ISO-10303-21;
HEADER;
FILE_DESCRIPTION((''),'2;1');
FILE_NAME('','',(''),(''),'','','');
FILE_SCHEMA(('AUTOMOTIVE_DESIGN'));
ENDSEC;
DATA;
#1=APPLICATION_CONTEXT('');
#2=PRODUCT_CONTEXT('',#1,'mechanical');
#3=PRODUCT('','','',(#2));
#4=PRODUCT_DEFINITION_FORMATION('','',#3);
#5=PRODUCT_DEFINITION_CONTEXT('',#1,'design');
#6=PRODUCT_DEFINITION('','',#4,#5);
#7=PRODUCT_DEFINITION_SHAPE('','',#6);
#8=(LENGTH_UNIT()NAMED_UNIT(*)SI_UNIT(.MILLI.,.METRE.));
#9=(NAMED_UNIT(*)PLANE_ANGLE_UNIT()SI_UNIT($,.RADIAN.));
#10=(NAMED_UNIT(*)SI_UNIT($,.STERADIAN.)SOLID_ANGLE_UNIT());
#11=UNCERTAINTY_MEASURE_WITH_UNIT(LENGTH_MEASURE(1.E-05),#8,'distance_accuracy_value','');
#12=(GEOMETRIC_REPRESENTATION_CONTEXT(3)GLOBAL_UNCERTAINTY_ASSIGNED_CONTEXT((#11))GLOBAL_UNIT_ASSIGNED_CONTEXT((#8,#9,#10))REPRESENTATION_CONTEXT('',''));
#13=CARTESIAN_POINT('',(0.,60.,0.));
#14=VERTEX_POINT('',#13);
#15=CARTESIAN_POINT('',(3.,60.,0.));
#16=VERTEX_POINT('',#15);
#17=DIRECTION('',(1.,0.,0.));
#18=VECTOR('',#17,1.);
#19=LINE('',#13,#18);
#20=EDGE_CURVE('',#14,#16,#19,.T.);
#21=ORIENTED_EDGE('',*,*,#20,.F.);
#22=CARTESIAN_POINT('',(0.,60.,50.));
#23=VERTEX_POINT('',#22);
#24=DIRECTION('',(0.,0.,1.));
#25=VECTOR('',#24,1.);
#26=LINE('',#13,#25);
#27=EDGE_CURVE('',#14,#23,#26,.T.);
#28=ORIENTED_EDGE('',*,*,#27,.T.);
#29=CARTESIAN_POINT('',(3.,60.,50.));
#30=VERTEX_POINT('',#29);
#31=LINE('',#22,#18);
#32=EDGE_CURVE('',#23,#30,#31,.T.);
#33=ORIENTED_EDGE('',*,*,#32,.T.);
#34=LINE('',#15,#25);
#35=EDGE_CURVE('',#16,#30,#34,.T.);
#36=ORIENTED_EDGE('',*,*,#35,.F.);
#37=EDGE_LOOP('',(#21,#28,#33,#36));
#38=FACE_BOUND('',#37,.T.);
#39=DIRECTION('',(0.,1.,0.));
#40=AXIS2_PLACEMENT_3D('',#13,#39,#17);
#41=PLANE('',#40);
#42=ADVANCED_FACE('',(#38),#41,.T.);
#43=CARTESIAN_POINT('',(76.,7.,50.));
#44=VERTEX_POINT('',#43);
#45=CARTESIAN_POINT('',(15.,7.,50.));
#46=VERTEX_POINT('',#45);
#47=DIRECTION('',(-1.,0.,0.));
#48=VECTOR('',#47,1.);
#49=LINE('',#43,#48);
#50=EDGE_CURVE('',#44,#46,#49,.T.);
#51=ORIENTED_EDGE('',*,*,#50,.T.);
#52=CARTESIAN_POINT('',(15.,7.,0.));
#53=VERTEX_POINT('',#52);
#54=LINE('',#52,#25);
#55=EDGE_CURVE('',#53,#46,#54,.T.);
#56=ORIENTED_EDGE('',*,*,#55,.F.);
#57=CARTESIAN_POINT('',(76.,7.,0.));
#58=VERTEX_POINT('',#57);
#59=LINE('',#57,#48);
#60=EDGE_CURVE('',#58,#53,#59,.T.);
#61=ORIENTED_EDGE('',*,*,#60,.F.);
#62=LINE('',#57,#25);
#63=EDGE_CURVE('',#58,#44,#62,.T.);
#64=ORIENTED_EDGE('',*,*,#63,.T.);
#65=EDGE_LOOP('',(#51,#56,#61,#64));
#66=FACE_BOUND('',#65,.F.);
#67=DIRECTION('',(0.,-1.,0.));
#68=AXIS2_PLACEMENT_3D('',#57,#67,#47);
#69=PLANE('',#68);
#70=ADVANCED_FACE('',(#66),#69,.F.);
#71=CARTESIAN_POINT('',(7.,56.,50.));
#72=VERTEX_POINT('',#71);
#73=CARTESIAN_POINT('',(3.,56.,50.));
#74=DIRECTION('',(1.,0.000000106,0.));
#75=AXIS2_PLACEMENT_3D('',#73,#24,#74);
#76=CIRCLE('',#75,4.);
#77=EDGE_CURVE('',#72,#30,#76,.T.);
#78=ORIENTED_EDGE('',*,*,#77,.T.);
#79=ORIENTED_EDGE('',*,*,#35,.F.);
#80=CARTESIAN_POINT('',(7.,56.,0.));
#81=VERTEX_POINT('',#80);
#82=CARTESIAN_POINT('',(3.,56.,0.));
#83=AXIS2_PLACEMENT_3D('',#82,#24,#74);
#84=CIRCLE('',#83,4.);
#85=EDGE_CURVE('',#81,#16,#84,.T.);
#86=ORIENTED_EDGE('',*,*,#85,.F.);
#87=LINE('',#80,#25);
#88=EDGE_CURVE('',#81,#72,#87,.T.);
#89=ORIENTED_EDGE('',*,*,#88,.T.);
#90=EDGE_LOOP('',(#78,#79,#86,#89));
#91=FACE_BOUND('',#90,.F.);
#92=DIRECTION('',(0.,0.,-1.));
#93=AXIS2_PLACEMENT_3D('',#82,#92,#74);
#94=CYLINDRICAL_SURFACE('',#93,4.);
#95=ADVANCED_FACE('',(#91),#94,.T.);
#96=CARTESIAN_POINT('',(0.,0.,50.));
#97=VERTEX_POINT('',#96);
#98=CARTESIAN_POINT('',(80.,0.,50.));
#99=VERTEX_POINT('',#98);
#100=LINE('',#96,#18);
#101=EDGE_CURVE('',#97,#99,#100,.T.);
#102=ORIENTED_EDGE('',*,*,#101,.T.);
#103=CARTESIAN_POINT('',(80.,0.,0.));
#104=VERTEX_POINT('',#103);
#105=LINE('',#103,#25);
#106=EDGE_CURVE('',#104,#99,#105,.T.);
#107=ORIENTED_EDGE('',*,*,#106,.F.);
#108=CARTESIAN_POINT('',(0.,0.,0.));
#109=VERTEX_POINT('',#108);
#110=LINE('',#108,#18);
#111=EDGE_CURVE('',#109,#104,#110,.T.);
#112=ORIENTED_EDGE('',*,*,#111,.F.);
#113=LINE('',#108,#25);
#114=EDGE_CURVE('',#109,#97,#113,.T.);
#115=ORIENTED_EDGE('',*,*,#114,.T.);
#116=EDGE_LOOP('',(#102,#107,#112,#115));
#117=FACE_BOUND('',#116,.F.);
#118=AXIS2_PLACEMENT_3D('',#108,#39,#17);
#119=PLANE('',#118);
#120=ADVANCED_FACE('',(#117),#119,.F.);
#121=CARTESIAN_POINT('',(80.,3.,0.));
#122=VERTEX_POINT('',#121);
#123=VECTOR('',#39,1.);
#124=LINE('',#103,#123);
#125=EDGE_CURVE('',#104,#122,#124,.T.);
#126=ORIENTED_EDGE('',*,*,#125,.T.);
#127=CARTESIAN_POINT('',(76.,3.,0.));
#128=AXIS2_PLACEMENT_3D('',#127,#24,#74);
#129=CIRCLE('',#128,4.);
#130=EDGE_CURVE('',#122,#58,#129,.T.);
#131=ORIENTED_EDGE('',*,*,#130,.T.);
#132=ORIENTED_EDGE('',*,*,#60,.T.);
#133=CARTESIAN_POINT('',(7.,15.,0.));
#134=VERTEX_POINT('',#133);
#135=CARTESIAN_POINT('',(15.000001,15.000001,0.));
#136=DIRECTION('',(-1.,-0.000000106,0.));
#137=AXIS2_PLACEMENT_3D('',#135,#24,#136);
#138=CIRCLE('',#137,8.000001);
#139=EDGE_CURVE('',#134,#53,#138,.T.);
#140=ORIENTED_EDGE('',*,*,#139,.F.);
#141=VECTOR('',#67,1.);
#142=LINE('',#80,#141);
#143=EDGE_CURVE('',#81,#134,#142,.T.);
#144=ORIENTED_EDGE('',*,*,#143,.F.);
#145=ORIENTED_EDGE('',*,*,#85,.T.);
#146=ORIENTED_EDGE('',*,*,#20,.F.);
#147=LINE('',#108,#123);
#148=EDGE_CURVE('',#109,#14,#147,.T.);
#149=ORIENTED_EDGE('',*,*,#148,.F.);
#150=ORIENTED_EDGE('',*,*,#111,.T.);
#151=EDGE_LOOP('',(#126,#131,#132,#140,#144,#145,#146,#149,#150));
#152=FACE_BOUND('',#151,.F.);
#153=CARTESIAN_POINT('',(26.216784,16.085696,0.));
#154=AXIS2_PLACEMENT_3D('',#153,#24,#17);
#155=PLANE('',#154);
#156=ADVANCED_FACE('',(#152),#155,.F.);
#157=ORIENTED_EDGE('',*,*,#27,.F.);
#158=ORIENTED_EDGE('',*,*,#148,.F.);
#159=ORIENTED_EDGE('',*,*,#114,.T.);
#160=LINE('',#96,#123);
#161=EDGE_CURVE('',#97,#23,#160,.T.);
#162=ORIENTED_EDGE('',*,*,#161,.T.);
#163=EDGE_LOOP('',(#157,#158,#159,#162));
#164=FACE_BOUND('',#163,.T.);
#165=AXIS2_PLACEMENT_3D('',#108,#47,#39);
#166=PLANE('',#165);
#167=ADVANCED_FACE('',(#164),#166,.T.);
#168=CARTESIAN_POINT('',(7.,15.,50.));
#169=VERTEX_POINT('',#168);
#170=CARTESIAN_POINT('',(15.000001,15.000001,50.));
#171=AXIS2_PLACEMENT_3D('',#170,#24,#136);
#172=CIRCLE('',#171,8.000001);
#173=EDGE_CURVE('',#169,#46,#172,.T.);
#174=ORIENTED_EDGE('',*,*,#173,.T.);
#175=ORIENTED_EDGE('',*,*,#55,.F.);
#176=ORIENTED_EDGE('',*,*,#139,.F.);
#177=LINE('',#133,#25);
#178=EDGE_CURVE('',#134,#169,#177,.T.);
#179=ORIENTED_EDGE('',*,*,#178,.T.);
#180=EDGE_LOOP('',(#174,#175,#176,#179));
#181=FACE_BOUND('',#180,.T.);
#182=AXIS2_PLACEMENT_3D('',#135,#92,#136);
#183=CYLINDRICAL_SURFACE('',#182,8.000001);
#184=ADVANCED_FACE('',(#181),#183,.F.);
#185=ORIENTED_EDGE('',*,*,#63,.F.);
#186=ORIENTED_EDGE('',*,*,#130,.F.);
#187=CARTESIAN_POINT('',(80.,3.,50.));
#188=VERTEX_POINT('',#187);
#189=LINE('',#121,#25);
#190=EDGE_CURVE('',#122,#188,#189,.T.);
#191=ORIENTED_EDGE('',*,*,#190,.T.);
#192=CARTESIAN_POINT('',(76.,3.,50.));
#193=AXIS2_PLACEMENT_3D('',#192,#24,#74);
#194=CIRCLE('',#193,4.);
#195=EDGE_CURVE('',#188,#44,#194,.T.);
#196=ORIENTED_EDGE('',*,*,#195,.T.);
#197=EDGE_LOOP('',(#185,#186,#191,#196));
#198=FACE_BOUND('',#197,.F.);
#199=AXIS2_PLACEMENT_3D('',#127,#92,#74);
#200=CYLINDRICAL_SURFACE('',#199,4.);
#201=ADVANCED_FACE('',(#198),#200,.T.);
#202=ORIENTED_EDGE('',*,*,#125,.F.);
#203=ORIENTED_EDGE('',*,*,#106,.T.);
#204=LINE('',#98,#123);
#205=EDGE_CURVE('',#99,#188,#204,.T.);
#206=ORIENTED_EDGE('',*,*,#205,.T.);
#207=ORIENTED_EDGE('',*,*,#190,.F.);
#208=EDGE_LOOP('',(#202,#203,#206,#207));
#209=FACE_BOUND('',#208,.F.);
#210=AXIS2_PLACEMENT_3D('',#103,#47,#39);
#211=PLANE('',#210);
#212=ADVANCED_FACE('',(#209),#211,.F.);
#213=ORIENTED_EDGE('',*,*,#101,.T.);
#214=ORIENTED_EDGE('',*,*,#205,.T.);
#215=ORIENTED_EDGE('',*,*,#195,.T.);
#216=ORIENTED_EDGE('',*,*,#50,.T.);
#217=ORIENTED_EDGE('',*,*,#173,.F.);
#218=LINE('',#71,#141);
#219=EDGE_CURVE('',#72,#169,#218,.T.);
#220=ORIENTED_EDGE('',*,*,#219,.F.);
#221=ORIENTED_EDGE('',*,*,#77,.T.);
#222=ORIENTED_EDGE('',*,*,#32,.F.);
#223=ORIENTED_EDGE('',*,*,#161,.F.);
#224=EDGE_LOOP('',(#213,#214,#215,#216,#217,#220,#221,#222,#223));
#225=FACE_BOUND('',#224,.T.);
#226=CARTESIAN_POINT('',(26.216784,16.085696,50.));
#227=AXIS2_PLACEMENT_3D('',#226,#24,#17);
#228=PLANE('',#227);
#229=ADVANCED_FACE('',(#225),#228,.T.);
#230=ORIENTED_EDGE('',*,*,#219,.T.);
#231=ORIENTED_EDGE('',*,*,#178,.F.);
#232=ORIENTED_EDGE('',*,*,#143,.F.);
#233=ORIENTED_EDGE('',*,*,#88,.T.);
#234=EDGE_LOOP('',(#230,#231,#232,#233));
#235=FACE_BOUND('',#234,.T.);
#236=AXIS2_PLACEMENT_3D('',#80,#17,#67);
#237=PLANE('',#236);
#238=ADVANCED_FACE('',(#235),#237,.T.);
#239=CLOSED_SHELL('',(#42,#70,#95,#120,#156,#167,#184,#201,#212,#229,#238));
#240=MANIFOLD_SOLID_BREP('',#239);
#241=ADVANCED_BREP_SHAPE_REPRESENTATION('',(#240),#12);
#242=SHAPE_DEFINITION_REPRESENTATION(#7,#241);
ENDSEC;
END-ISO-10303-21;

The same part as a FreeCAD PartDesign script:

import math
import FreeCAD as App
import Part
import Sketcher
from FreeCAD import Vector
Q = App.Units.Quantity

doc = App.newDocument("Part")
body = doc.addObject("PartDesign::Body", "Body")

# Sketch on XY plane
sketch1 = body.newObject("Sketcher::SketchObject", "Sketch")
sketch1.AttachmentSupport = (doc.getObject("XY_Plane"), [""])
sketch1.MapMode = "FlatFace"
sketch1.addGeometry(Part.LineSegment(Vector(0, 0, 0), Vector(80, 0, 0)), False)
sketch1.addGeometry(Part.LineSegment(Vector(80, 0, 0), Vector(80, 3, 0)), False)
sketch1.addGeometry(Part.ArcOfCircle(Part.Circle(Vector(76, 3, 0), Vector(0, 0, 1), 4), math.radians(0.000006), math.radians(89.999994)), False)
sketch1.addGeometry(Part.LineSegment(Vector(76, 7, 0), Vector(15, 7, 0)), False)
sketch1.addGeometry(Part.ArcOfCircle(Part.Circle(Vector(15.000001, 15.000001, 0), Vector(0, 0, 1), 8.000001), math.radians(-179.999994), math.radians(-90.000006)), False)
sketch1.addGeometry(Part.LineSegment(Vector(7, 15, 0), Vector(7, 56, 0)), False)
sketch1.addGeometry(Part.ArcOfCircle(Part.Circle(Vector(3, 56, 0), Vector(0, 0, 1), 4), math.radians(0.000006), math.radians(89.999994)), False)
sketch1.addGeometry(Part.LineSegment(Vector(3, 60, 0), Vector(0, 60, 0)), False)
sketch1.addGeometry(Part.LineSegment(Vector(0, 60, 0), Vector(0, 0, 0)), False)
sketch1.addConstraint(Sketcher.Constraint("Coincident", 0, 2, 1, 1))
sketch1.addConstraint(Sketcher.Constraint("Tangent", 1, 2, 2, 1))
sketch1.addConstraint(Sketcher.Constraint("Tangent", 2, 2, 3, 1))
sketch1.addConstraint(Sketcher.Constraint("Tangent", 3, 2, 4, 2))
sketch1.addConstraint(Sketcher.Constraint("Tangent", 4, 1, 5, 1))
sketch1.addConstraint(Sketcher.Constraint("Tangent", 5, 2, 6, 1))
sketch1.addConstraint(Sketcher.Constraint("Tangent", 6, 2, 7, 1))
sketch1.addConstraint(Sketcher.Constraint("Coincident", 7, 2, 8, 1))
sketch1.addConstraint(Sketcher.Constraint("Coincident", 8, 2, 0, 1))
sketch1.addConstraint(Sketcher.Constraint("Horizontal", 0))
sketch1.addConstraint(Sketcher.Constraint("Vertical", 1))
sketch1.addConstraint(Sketcher.Constraint("Horizontal", 3))
sketch1.addConstraint(Sketcher.Constraint("Vertical", 5))
sketch1.addConstraint(Sketcher.Constraint("Horizontal", 7))
sketch1.addConstraint(Sketcher.Constraint("Vertical", 8))
sketch1.addConstraint(Sketcher.Constraint("Coincident", 8, 2, -1, 1))
sketch1.addConstraint(Sketcher.Constraint("Equal", 2, 6))
sketch1.addConstraint(Sketcher.Constraint("Equal", 7, 1))
sketch1.addConstraint(Sketcher.Constraint("Radius", 2, Q("4 mm")))
sketch1.addConstraint(Sketcher.Constraint("Radius", 4, Q("8.000001 mm")))
sketch1.addConstraint(Sketcher.Constraint("DistanceX", 0, 1, 0, 2, Q("80 mm")))
sketch1.addConstraint(Sketcher.Constraint("DistanceX", 3, 2, 3, 1, Q("61 mm")))
sketch1.addConstraint(Sketcher.Constraint("DistanceY", 5, 1, 5, 2, Q("41 mm")))
pad1 = body.newObject("PartDesign::Pad", "Pad")
pad1.Profile = sketch1
pad1.Length = 50

doc.recompute()
